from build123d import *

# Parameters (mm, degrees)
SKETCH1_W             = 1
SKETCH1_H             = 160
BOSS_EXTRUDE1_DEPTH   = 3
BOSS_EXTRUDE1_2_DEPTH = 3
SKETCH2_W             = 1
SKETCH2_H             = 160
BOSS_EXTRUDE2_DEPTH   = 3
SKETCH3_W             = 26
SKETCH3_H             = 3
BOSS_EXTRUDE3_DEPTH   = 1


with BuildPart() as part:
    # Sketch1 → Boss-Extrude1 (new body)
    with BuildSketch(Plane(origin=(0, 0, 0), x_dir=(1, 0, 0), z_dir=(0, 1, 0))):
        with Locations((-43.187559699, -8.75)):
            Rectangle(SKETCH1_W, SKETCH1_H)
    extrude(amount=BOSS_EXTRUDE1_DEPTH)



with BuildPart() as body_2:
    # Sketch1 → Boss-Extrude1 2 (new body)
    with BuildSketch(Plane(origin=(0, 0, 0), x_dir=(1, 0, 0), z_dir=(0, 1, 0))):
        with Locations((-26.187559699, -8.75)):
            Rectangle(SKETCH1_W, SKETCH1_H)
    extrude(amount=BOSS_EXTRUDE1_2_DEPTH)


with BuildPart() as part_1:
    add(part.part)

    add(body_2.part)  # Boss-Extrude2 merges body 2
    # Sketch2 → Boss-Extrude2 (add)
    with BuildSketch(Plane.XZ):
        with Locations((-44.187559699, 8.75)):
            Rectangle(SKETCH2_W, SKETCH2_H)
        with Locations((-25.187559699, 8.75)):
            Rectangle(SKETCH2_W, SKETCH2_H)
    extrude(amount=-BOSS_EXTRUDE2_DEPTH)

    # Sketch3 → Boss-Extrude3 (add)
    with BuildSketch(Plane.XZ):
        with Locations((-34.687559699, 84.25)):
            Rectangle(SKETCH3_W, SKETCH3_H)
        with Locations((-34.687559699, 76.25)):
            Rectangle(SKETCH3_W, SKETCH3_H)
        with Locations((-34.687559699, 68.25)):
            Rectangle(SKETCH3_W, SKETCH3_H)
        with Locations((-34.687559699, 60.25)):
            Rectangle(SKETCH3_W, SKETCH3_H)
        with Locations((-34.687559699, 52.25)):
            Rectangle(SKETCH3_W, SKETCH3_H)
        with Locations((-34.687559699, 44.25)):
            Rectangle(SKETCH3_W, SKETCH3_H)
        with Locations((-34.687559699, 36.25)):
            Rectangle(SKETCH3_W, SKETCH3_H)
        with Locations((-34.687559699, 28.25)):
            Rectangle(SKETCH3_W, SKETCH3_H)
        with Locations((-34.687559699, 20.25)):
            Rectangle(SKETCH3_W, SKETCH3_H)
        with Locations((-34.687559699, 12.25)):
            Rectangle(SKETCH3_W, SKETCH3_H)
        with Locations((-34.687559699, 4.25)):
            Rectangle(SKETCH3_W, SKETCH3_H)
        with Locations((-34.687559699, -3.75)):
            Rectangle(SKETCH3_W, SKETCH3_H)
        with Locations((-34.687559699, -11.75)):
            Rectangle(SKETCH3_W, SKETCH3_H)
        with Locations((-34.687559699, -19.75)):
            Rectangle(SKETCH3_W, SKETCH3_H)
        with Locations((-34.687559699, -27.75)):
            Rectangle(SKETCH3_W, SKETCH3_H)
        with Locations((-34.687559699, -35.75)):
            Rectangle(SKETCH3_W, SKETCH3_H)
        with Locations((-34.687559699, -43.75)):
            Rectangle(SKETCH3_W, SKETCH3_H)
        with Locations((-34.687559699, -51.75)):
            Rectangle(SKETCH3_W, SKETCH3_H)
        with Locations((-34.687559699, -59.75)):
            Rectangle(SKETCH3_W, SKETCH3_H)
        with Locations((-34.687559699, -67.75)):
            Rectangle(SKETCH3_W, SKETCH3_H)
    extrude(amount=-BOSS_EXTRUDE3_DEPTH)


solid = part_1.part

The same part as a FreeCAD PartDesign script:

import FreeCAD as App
import Part
import Sketcher

V = App.Vector
Q = App.Units.Quantity


def add_polygon(sketch, points):
    """Adds a closed chain of lines whose ends are joined by coincident constraints."""
    first, n = sketch.GeometryCount, len(points)
    for a, b in zip(points, points[1:] + points[:1]):
        sketch.addGeometry(Part.LineSegment(App.Vector(*a, 0), App.Vector(*b, 0)), False)
    for i in range(n):
        sketch.addConstraint(Sketcher.Constraint("Coincident", first + i, 2, first + (i + 1) % n, 1))

doc = App.newDocument("Part")
body = doc.addObject("PartDesign::Body", "Body")

# Sketch on XZ plane
sketch1 = body.newObject("Sketcher::SketchObject", "Sketch")
sketch1.AttachmentSupport = (doc.getObject("XZ_Plane"), [""])
sketch1.MapMode = "FlatFace"
add_polygon(sketch1, [(-43.7, -71.2), (-43.7, 88.8), (-42.7, 88.8), (-42.7, -71.2)])  # lines 0-3
sketch1.addConstraint([
    Sketcher.Constraint("Vertical", 0),
    Sketcher.Constraint("Horizontal", 1),
    Sketcher.Constraint("Vertical", 2),
    Sketcher.Constraint("Horizontal", 3),
    Sketcher.Constraint("DistanceX", 1, 1, 1, 2, Q("1 mm")),
    Sketcher.Constraint("DistanceY", 0, 1, 0, 2, Q("160 mm")),
    Sketcher.Constraint("DistanceY", -1, 1, 0, 2, Q("88.75 mm")),
    Sketcher.Constraint("DistanceX", 0, 2, -1, 1, Q("43.68756 mm")),
])
pad1 = body.newObject("PartDesign::Pad", "Pad")
pad1.Profile = sketch1
pad1.Length = 3
pad1.Reversed = True
body2 = doc.addObject("PartDesign::Body", "Body001")

# Sketch on XZ plane
sketch2 = body2.newObject("Sketcher::SketchObject", "Sketch001")
sketch2.AttachmentSupport = (doc.getObject("XZ_Plane001"), [""])
sketch2.MapMode = "FlatFace"
add_polygon(sketch2, [(-26.7, -71.2), (-26.7, 88.8), (-25.7, 88.8), (-25.7, -71.2)])  # lines 0-3
sketch2.addConstraint([
    Sketcher.Constraint("Vertical", 0),
    Sketcher.Constraint("Horizontal", 1),
    Sketcher.Constraint("Vertical", 2),
    Sketcher.Constraint("Horizontal", 3),
    Sketcher.Constraint("DistanceX", 1, 1, 1, 2, Q("1 mm")),
    Sketcher.Constraint("DistanceY", 0, 1, 0, 2, Q("160 mm")),
    Sketcher.Constraint("DistanceY", -1, 1, 0, 2, Q("88.75 mm")),
    Sketcher.Constraint("DistanceX", 0, 2, -1, 1, Q("26.68756 mm")),
])
pad2 = body2.newObject("PartDesign::Pad", "Pad001")
pad2.Profile = sketch2
pad2.Length = 3
pad2.Reversed = True
body.AllowCompound = True
doc.recompute()

boolean = body.newObject("PartDesign::Boolean", "Boolean")
boolean.Type = "Fuse"
boolean.addObjects([body2])

# Sketch on XZ plane
sketch3 = body.newObject("Sketcher::SketchObject", "Sketch002")
sketch3.AttachmentSupport = (doc.getObject("XZ_Plane"), [""])
sketch3.MapMode = "FlatFace"
add_polygon(sketch3, [(-44.7, 88.8), (-44.7, -71.2), (-43.7, -71.2), (-43.7, 88.8)])  # lines 0-3
add_polygon(sketch3, [(-25.7, 88.8), (-25.7, -71.2), (-24.7, -71.2), (-24.7, 88.8)])  # lines 4-7
sketch3.addConstraint([
    Sketcher.Constraint("Vertical", 0),
    Sketcher.Constraint("Horizontal", 1),
    Sketcher.Constraint("Vertical", 2),
    Sketcher.Constraint("Horizontal", 3),
    Sketcher.Constraint("Vertical", 4),
    Sketcher.Constraint("Horizontal", 5),
    Sketcher.Constraint("Vertical", 6),
    Sketcher.Constraint("Horizontal", 7),
    Sketcher.Constraint("Horizontal", 1, 2, 4, 2),
    Sketcher.Constraint("Horizontal", 3, 2, 6, 2),
    Sketcher.Constraint("Equal", 3, 5),
    Sketcher.Constraint("DistanceX", 1, 1, 1, 2, Q("1 mm")),
    Sketcher.Constraint("DistanceY", 0, 2, 0, 1, Q("160 mm")),
    Sketcher.Constraint("DistanceX", 1, 2, 4, 2, Q("18 mm")),
    Sketcher.Constraint("DistanceY", 0, 2, -1, 1, Q("71.25 mm")),
    Sketcher.Constraint("DistanceX", 0, 2, -1, 1, Q("44.68756 mm")),
])
pad3 = body.newObject("PartDesign::Pad", "Pad002")
pad3.Profile = sketch3
pad3.Length = 3
pad3.Reversed = True

# Sketch on XZ plane
sketch4 = body.newObject("Sketcher::SketchObject", "Sketch003")
sketch4.AttachmentSupport = (doc.getObject("XZ_Plane"), [""])
sketch4.MapMode = "FlatFace"
add_polygon(sketch4, [(-47.7, 85.8), (-47.7, 82.8), (-21.7, 82.8), (-21.7, 85.8)])  # lines 0-3
add_polygon(sketch4, [(-47.7, 77.8), (-47.7, 74.8), (-21.7, 74.8), (-21.7, 77.8)])  # lines 4-7
add_polygon(sketch4, [(-47.7, 69.8), (-47.7, 66.8), (-21.7, 66.8), (-21.7, 69.8)])  # lines 8-11
add_polygon(sketch4, [(-47.7, 61.8), (-47.7, 58.8), (-21.7, 58.8), (-21.7, 61.8)])  # lines 12-15
add_polygon(sketch4, [(-47.7, 53.8), (-47.7, 50.8), (-21.7, 50.8), (-21.7, 53.8)])  # lines 16-19
add_polygon(sketch4, [(-47.7, 45.8), (-47.7, 42.8), (-21.7, 42.8), (-21.7, 45.8)])  # lines 20-23
add_polygon(sketch4, [(-47.7, 37.8), (-47.7, 34.8), (-21.7, 34.8), (-21.7, 37.8)])  # lines 24-27
add_polygon(sketch4, [(-47.7, 29.8), (-47.7, 26.8), (-21.7, 26.8), (-21.7, 29.8)])  # lines 28-31
add_polygon(sketch4, [(-47.7, 21.8), (-47.7, 18.8), (-21.7, 18.8), (-21.7, 21.8)])  # lines 32-35
add_polygon(sketch4, [(-47.7, 13.8), (-47.7, 10.8), (-21.7, 10.8), (-21.7, 13.8)])  # lines 36-39
add_polygon(sketch4, [(-47.7, 5.8), (-47.7, 2.8), (-21.7, 2.8), (-21.7, 5.8)])  # lines 40-43
add_polygon(sketch4, [(-47.7, -2.2), (-47.7, -5.2), (-21.7, -5.2), (-21.7, -2.2)])  # lines 44-47
add_polygon(sketch4, [(-47.7, -10.2), (-47.7, -13.2), (-21.7, -13.2), (-21.7, -10.2)])  # lines 48-51
add_polygon(sketch4, [(-47.7, -18.2), (-47.7, -21.2), (-21.7, -21.2), (-21.7, -18.2)])  # lines 52-55
add_polygon(sketch4, [(-47.7, -26.2), (-47.7, -29.2), (-21.7, -29.2), (-21.7, -26.2)])  # lines 56-59
add_polygon(sketch4, [(-47.7, -34.2), (-47.7, -37.2), (-21.7, -37.2), (-21.7, -34.2)])  # lines 60-63
add_polygon(sketch4, [(-47.7, -42.2), (-47.7, -45.2), (-21.7, -45.2), (-21.7, -42.2)])  # lines 64-67
add_polygon(sketch4, [(-47.7, -50.2), (-47.7, -53.2), (-21.7, -53.2), (-21.7, -50.2)])  # lines 68-71
add_polygon(sketch4, [(-47.7, -58.2), (-47.7, -61.2), (-21.7, -61.2), (-21.7, -58.2)])  # lines 72-75
add_polygon(sketch4, [(-47.7, -66.2), (-47.7, -69.2), (-21.7, -69.2), (-21.7, -66.2)])  # lines 76-79
sketch4.addConstraint([
    Sketcher.Constraint("Vertical", 0),
    Sketcher.Constraint("Horizontal", 1),
    Sketcher.Constraint("Vertical", 2),
    Sketcher.Constraint("Horizontal", 3),
    Sketcher.Constraint("Vertical", 4),
    Sketcher.Constraint("Horizontal", 5),
    Sketcher.Constraint("Vertical", 6),
    Sketcher.Constraint("Horizontal", 7),
    Sketcher.Constraint("Vertical", 8),
    Sketcher.Constraint("Horizontal", 9),
    Sketcher.Constraint("Vertical", 10),
    Sketcher.Constraint("Horizontal", 11),
    Sketcher.Constraint("Vertical", 12),
    Sketcher.Constraint("Horizontal", 13),
    Sketcher.Constraint("Vertical", 14),
    Sketcher.Constraint("Horizontal", 15),
    Sketcher.Constraint("Vertical", 16),
    Sketcher.Constraint("Horizontal", 17),
    Sketcher.Constraint("Vertical", 18),
    Sketcher.Constraint("Horizontal", 19),
    Sketcher.Constraint("Vertical", 20),
    Sketcher.Constraint("Horizontal", 21),
    Sketcher.Constraint("Vertical", 22),
    Sketcher.Constraint("Horizontal", 23),
    Sketcher.Constraint("Vertical", 24),
    Sketcher.Constraint("Horizontal", 25),
    Sketcher.Constraint("Vertical", 26),
    Sketcher.Constraint("Horizontal", 27),
    Sketcher.Constraint("Vertical", 28),
    Sketcher.Constraint("Horizontal", 29),
    Sketcher.Constraint("Vertical", 30),
    Sketcher.Constraint("Horizontal", 31),
    Sketcher.Constraint("Vertical", 32),
    Sketcher.Constraint("Horizontal", 33),
    Sketcher.Constraint("Vertical", 34),
    Sketcher.Constraint("Horizontal", 35),
    Sketcher.Constraint("Vertical", 36),
    Sketcher.Constraint("Horizontal", 37),
    Sketcher.Constraint("Vertical", 38),
    Sketcher.Constraint("Horizontal", 39),
    Sketcher.Constraint("Vertical", 40),
    Sketcher.Constraint("Horizontal", 41),
    Sketcher.Constraint("Vertical", 42),
    Sketcher.Constraint("Horizontal", 43),
    Sketcher.Constraint("Vertical", 44),
    Sketcher.Constraint("Horizontal", 45),
    Sketcher.Constraint("Vertical", 46),
    Sketcher.Constraint("Horizontal", 47),
    Sketcher.Constraint("Vertical", 48),
    Sketcher.Constraint("Horizontal", 49),
    Sketcher.Constraint("Vertical", 50),
    Sketcher.Constraint("Horizontal", 51),
    Sketcher.Constraint("Vertical", 52),
    Sketcher.Constraint("Horizontal", 53),
    Sketcher.Constraint("Vertical", 54),
    Sketcher.Constraint("Horizontal", 55),
    Sketcher.Constraint("Vertical", 56),
    Sketcher.Constraint("Horizontal", 57),
    Sketcher.Constraint("Vertical", 58),
    Sketcher.Constraint("Horizontal", 59),
    Sketcher.Constraint("Vertical", 60),
    Sketcher.Constraint("Horizontal", 61),
    Sketcher.Constraint("Vertical", 62),
    Sketcher.Constraint("Horizontal", 63),
    Sketcher.Constraint("Vertical", 64),
    Sketcher.Constraint("Horizontal", 65),
    Sketcher.Constraint("Vertical", 66),
    Sketcher.Constraint("Horizontal", 67),
    Sketcher.Constraint("Vertical", 68),
    Sketcher.Constraint("Horizontal", 69),
    Sketcher.Constraint("Vertical", 70),
    Sketcher.Constraint("Horizontal", 71),
    Sketcher.Constraint("Vertical", 72),
    Sketcher.Constraint("Horizontal", 73),
    Sketcher.Constraint("Vertical", 74),
    Sketcher.Constraint("Horizontal", 75),
    Sketcher.Constraint("Vertical", 76),
    Sketcher.Constraint("Horizontal", 77),
    Sketcher.Constraint("Vertical", 78),
    Sketcher.Constraint("Horizontal", 79),
    Sketcher.Constraint("Vertical", 3, 2, 4, 2),
    Sketcher.Constraint("Vertical", 2, 2, 5, 2),
    Sketcher.Constraint("Vertical", 7, 2, 8, 2),
    Sketcher.Constraint("Vertical", 6, 2, 9, 2),
    Sketcher.Constraint("Vertical", 11, 2, 12, 2),
    Sketcher.Constraint("Vertical", 10, 2, 13, 2),
    Sketcher.Constraint("Vertical", 15, 2, 16, 2),
    Sketcher.Constraint("Vertical", 14, 2, 17, 2),
    Sketcher.Constraint("Vertical", 19, 2, 20, 2),
    Sketcher.Constraint("Vertical", 18, 2, 21, 2),
    Sketcher.Constraint("Vertical", 23, 2, 24, 2),
    Sketcher.Constraint("Vertical", 22, 2, 25, 2),
    Sketcher.Constraint("Vertical", 27, 2, 28, 2),
    Sketcher.Constraint("Vertical", 26, 2, 29, 2),
    Sketcher.Constraint("Vertical", 31, 2, 32, 2),
    Sketcher.Constraint("Vertical", 30, 2, 33, 2),
    Sketcher.Constraint("Vertical", 35, 2, 36, 2),
    Sketcher.Constraint("Vertical", 34, 2, 37, 2),
    Sketcher.Constraint("Vertical", 39, 2, 40, 2),
    Sketcher.Constraint("Vertical", 38, 2, 41, 2),
    Sketcher.Constraint("Vertical", 43, 2, 44, 2),
    Sketcher.Constraint("Vertical", 42, 2, 45, 2),
    Sketcher.Constraint("Vertical", 47, 2, 48, 2),
    Sketcher.Constraint("Vertical", 46, 2, 49, 2),
    Sketcher.Constraint("Vertical", 51, 2, 52, 2),
    Sketcher.Constraint("Vertical", 50, 2, 53, 2),
    Sketcher.Constraint("Vertical", 55, 2, 56, 2),
    Sketcher.Constraint("Vertical", 54, 2, 57, 2),
    Sketcher.Constraint("Vertical", 59, 2, 60, 2),
    Sketcher.Constraint("Vertical", 58, 2, 61, 2),
    Sketcher.Constraint("Vertical", 63, 2, 64, 2),
    Sketcher.Constraint("Vertical", 62, 2, 65, 2),
    Sketcher.Constraint("Vertical", 67, 2, 68, 2),
    Sketcher.Constraint("Vertical", 66, 2, 69, 2),
    Sketcher.Constraint("Vertical", 71, 2, 72, 2),
    Sketcher.Constraint("Vertical", 70, 2, 73, 2),
    Sketcher.Constraint("Vertical", 75, 2, 76, 2),
    Sketcher.Constraint("Vertical", 74, 2, 77, 2),
    Sketcher.Constraint("Equal", 2, 4),
    Sketcher.Constraint("Equal", 6, 8),
    Sketcher.Constraint("Equal", 10, 12),
    Sketcher.Constraint("Equal", 14, 16),
    Sketcher.Constraint("Equal", 18, 20),
    Sketcher.Constraint("Equal", 22, 24),
    Sketcher.Constraint("Equal", 26, 28),
    Sketcher.Constraint("Equal", 30, 32),
    Sketcher.Constraint("Equal", 34, 36),
    Sketcher.Constraint("Equal", 38, 40),
    Sketcher.Constraint("Equal", 42, 44),
    Sketcher.Constraint("Equal", 46, 48),
    Sketcher.Constraint("Equal", 50, 52),
    Sketcher.Constraint("Equal", 54, 56),
    Sketcher.Constraint("Equal", 58, 60),
    Sketcher.Constraint("Equal", 62, 64),
    Sketcher.Constraint("Equal", 66, 68),
    Sketcher.Constraint("Equal", 70, 72),
    Sketcher.Constraint("Equal", 74, 76),
    Sketcher.Constraint("DistanceX", 1, 1, 1, 2, Q("26 mm")),
    Sketcher.Constraint("DistanceY", 0, 2, 0, 1, Q("3 mm")),
    Sketcher.Constraint("DistanceY", -1, 1, 0, 2, Q("82.75 mm")),
    Sketcher.Constraint("DistanceY", -1, 1, 4, 2, Q("74.75 mm")),
    Sketcher.Constraint("DistanceY", -1, 1, 8, 2, Q("66.75 mm")),
    Sketcher.Constraint("DistanceY", -1, 1, 12, 2, Q("58.75 mm")),
    Sketcher.Constraint("DistanceY", -1, 1, 16, 2, Q("50.75 mm")),
    Sketcher.Constraint("DistanceY", -1, 1, 20, 2, Q("42.75 mm")),
    Sketcher.Constraint("DistanceY", -1, 1, 24, 2, Q("34.75 mm")),
    Sketcher.Constraint("DistanceY", -1, 1, 28, 2, Q("26.75 mm")),
    Sketcher.Constraint("DistanceY", -1, 1, 32, 2, Q("18.75 mm")),
    Sketcher.Constraint("DistanceY", -1, 1, 36, 2, Q("10.75 mm")),
    Sketcher.Constraint("DistanceY", -1, 1, 40, 2, Q("2.75 mm")),
    Sketcher.Constraint("DistanceY", 44, 2, -1, 1, Q("5.25 mm")),
    Sketcher.Constraint("DistanceY", 48, 2, -1, 1, Q("13.25 mm")),
    Sketcher.Constraint("DistanceY", 52, 2, -1, 1, Q("21.25 mm")),
    Sketcher.Constraint("DistanceY", 56, 2, -1, 1, Q("29.25 mm")),
    Sketcher.Constraint("DistanceY", 60, 2, -1, 1, Q("37.25 mm")),
    Sketcher.Constraint("DistanceY", 64, 2, -1, 1, Q("45.25 mm")),
    Sketcher.Constraint("DistanceY", 68, 2, -1, 1, Q("53.25 mm")),
    Sketcher.Constraint("DistanceY", 72, 2, -1, 1, Q("61.25 mm")),
    Sketcher.Constraint("DistanceY", 76, 2, -1, 1, Q("69.25 mm")),
    Sketcher.Constraint("DistanceX", 0, 2, -1, 1, Q("47.68756 mm")),
])
pad4 = body.newObject("PartDesign::Pad", "Pad003")
pad4.Profile = sketch4
pad4.Length = 1
pad4.Reversed = True

doc.recompute()
